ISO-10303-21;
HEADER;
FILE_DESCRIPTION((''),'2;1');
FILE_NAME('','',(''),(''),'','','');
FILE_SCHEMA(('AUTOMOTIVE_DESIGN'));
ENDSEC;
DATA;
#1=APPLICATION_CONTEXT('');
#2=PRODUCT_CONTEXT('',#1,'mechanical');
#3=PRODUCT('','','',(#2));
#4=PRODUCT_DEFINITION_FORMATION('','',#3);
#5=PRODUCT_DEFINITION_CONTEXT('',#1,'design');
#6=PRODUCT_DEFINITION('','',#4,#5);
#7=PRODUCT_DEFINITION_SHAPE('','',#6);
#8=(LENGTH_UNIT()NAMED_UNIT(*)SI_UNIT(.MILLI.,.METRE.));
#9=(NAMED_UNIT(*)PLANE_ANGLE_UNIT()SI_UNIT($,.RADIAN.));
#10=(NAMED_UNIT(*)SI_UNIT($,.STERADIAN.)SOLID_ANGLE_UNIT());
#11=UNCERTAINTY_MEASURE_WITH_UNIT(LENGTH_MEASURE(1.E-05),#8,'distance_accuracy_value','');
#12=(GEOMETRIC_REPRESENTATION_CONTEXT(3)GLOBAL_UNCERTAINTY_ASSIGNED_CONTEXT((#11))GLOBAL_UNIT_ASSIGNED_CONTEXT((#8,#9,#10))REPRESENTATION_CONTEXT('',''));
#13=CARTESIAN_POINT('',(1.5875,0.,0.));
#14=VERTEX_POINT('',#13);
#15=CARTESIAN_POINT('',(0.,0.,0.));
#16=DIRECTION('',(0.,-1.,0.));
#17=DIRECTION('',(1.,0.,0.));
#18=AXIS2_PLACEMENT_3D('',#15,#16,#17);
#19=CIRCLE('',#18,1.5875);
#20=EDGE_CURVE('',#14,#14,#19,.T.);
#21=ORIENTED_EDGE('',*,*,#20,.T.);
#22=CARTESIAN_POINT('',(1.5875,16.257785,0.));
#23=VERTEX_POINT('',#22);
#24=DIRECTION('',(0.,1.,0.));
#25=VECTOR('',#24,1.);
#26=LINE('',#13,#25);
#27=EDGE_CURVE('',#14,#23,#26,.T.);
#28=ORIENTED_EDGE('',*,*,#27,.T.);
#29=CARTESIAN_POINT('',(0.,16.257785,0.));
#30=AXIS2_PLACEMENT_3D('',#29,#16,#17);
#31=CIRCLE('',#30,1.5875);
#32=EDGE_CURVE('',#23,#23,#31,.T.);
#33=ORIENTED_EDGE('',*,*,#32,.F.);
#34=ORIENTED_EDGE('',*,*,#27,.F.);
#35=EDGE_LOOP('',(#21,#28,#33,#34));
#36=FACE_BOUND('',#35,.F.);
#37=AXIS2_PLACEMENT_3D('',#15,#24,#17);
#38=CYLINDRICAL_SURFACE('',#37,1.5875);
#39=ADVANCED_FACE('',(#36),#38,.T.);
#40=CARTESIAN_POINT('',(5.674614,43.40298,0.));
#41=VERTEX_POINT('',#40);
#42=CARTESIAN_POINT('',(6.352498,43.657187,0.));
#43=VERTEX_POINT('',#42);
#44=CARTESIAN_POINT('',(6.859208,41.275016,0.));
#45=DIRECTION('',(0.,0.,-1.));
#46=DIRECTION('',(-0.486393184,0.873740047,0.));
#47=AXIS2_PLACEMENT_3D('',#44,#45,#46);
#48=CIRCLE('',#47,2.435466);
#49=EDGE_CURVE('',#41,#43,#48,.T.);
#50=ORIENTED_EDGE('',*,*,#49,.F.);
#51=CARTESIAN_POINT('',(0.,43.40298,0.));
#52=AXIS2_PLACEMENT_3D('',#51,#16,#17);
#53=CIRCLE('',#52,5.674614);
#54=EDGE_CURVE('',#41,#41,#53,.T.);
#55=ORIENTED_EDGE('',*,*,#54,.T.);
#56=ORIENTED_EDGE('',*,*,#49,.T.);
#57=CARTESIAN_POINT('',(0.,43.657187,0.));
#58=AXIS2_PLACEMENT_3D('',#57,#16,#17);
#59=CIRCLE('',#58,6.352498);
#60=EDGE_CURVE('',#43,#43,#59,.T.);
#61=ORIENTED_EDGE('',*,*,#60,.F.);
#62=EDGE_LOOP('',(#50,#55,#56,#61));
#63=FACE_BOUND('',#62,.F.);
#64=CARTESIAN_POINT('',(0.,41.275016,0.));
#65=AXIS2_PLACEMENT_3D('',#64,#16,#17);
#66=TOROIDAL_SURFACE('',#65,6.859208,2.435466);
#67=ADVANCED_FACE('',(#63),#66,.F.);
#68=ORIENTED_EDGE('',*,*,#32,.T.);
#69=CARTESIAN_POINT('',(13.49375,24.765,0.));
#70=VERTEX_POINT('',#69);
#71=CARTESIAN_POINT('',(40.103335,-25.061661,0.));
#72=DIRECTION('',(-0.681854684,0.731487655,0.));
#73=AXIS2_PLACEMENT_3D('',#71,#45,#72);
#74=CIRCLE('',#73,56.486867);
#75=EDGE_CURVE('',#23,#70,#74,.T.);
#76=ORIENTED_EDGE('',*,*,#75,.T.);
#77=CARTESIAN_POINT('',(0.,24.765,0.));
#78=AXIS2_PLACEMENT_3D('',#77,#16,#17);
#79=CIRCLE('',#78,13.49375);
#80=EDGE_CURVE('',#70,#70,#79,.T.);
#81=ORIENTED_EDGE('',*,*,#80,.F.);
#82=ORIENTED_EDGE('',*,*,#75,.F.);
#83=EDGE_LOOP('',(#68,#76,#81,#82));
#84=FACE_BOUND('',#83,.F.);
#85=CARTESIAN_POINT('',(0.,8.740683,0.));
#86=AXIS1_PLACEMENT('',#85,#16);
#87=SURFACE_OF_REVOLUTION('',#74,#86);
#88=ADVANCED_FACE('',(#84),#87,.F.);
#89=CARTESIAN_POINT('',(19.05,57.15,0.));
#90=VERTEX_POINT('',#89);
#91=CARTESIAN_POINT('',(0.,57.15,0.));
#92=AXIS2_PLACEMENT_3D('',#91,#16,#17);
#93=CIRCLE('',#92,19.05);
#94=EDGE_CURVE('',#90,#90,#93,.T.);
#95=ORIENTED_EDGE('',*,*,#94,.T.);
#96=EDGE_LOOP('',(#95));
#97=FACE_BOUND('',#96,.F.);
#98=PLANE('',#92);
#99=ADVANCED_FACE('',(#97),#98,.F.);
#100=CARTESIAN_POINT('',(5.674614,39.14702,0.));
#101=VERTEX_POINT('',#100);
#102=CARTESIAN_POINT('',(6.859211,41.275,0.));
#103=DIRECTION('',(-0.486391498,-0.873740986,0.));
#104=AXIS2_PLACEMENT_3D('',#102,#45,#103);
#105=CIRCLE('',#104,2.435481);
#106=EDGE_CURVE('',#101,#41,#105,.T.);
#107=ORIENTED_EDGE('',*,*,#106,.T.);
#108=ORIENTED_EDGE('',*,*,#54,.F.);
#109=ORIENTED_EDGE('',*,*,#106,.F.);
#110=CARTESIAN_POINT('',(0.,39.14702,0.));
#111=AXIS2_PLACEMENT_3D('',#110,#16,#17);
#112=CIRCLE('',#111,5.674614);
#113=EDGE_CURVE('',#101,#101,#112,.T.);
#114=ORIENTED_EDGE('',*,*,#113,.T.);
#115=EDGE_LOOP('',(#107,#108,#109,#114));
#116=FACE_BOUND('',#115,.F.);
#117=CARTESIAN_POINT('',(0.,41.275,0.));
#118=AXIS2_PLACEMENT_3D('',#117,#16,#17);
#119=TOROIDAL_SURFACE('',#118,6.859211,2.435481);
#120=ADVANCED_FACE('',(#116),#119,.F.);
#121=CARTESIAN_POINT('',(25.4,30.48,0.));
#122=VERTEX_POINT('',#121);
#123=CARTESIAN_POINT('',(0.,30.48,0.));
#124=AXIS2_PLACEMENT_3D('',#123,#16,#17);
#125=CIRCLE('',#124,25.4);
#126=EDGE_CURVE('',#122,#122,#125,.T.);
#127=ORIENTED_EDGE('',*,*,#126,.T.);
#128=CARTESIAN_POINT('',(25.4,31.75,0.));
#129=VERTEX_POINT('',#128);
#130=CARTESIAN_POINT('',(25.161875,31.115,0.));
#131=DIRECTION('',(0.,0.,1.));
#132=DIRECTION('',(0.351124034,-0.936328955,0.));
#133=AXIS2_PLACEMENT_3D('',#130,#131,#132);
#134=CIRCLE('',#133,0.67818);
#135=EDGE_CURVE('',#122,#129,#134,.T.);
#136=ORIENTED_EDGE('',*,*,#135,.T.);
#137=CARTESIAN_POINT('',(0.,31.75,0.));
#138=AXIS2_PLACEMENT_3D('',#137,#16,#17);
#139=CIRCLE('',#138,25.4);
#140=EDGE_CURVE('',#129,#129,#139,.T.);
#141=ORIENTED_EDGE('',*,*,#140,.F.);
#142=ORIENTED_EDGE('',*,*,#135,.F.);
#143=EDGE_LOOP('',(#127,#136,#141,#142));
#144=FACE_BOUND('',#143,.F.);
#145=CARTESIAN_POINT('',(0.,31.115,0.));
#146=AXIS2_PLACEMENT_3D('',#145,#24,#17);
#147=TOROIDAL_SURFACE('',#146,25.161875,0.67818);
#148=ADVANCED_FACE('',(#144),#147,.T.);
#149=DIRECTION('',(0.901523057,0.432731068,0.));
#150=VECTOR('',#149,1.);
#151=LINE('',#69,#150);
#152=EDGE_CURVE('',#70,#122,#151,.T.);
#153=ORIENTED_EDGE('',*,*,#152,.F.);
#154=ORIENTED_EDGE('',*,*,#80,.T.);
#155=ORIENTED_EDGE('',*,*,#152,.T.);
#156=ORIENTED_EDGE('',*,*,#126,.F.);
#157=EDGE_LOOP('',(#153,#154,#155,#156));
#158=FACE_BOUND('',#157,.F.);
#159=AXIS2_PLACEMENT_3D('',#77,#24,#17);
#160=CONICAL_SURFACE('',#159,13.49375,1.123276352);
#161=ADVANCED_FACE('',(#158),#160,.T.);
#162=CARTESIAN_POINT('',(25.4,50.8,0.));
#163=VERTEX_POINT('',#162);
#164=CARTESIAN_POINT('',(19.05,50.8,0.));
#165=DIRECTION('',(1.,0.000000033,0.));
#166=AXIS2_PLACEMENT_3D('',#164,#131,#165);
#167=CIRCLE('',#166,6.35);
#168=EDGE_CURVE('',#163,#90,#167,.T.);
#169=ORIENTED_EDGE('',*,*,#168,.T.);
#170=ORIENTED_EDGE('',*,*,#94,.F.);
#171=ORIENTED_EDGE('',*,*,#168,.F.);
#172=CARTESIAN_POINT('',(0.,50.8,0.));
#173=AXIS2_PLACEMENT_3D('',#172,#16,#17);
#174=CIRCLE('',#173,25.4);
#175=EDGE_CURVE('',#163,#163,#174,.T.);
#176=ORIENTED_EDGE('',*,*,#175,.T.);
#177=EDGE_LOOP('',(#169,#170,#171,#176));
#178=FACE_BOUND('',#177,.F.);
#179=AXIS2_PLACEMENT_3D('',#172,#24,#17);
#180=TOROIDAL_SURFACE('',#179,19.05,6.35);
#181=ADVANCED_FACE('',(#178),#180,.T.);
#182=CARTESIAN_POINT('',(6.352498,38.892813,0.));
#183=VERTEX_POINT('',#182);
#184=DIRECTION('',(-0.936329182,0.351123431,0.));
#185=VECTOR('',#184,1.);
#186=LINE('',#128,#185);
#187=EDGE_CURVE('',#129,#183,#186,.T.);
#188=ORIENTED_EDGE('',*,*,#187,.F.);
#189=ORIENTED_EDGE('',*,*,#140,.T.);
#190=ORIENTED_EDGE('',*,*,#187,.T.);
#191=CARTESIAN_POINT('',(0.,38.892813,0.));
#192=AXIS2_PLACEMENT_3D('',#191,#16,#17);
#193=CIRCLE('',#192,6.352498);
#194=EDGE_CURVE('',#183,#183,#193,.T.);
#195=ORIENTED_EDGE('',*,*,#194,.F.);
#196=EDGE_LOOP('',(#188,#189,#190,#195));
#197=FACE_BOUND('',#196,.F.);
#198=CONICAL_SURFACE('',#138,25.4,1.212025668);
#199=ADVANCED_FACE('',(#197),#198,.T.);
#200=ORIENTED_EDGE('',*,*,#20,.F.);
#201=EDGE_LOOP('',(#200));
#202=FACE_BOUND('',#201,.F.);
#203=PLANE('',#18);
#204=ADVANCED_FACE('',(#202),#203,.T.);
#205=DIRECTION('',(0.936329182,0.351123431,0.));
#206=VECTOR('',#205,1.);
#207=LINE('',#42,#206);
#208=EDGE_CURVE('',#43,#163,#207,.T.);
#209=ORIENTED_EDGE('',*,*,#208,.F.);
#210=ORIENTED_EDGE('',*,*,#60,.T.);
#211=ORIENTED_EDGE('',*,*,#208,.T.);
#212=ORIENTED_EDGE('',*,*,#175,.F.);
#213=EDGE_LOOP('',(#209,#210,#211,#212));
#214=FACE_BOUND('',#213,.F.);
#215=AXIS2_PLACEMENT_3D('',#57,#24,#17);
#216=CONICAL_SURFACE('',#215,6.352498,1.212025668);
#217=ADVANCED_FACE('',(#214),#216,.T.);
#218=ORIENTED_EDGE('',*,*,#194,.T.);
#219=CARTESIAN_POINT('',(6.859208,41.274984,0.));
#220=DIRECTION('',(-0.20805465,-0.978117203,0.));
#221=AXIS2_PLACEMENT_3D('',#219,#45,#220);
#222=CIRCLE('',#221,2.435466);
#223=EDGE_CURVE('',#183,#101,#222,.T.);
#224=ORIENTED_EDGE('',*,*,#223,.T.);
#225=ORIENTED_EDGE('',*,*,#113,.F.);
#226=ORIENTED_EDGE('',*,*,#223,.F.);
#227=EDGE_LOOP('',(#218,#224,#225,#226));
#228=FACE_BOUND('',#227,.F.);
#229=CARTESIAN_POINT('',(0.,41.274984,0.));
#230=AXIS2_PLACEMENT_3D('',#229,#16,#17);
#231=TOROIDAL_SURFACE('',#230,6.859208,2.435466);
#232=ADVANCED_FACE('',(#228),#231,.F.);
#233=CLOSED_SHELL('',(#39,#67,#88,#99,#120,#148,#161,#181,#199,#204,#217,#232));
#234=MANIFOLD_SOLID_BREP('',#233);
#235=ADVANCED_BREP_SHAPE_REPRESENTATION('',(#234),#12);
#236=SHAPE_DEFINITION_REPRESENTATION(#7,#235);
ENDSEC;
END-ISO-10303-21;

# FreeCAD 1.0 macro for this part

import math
import FreeCAD as App
import Part
import Sketcher
Q = App.Units.Quantity

doc = App.newDocument("Part")
params = doc.addObject("Spreadsheet::Sheet", "Params")
for row, (alias, value) in enumerate([
    ("sketch1_radius", "0.25 in"),
    ("sketch1_width", "0.75 in"),
    ("sketch1_width2", "0.0625 in"),
    ("revolution_angle", "360 deg"),
], start=1):
    params.set(f"A{row}", alias)
    params.set(f"B{row}", "=" + value)
    params.setAlias(f"B{row}", alias)

body = doc.addObject("PartDesign::Body", "Body")

sketch1 = doc.addObject("Sketcher::SketchObject", "Sketch")
body.addObject(sketch1)
sketch1.AttachmentSupport = (doc.XY_Plane, [""])
sketch1.MapMode = "FlatFace"
sketch1.addGeometry(Part.LineSegment(App.Vector(0, 0, 0), App.Vector(1.5875, 0, 0)), False)
sketch1.addGeometry(Part.LineSegment(App.Vector(1.5875, 0, 0), App.Vector(1.5875, 16.257785, 0)), False)
sketch1.addGeometry(Part.ArcOfCircle(Part.Circle(App.Vector(40.103335, -25.061661, 0), App.Vector(0, 0, 1), 56.486867), math.radians(118.104139), math.radians(132.988745)), False)
sketch1.addGeometry(Part.LineSegment(App.Vector(13.49375, 24.765, 0), App.Vector(25.4, 30.48, 0)), False)
sketch1.addGeometry(Part.ArcOfCircle(Part.Circle(App.Vector(25.161875, 31.115, 0), App.Vector(0, 0, 1), 0.67818), math.radians(-69.443919), math.radians(69.443919)), False)
sketch1.addGeometry(Part.LineSegment(App.Vector(25.4, 31.75, 0), App.Vector(6.352498, 38.892813, 0)), False)
sketch1.addGeometry(Part.ArcOfCircle(Part.Circle(App.Vector(6.859208, 41.274984, 0), App.Vector(0, 0, 1), 2.435466), math.radians(-119.10379), math.radians(-102.008374)), False)
sketch1.addGeometry(Part.ArcOfCircle(Part.Circle(App.Vector(6.859211, 41.275, 0), App.Vector(0, 0, 1), 2.435481), math.radians(119.10368), math.radians(240.89632)), False)
sketch1.addGeometry(Part.ArcOfCircle(Part.Circle(App.Vector(6.859208, 41.275016, 0), App.Vector(0, 0, 1), 2.435466), math.radians(102.008374), math.radians(119.10379)), False)
sketch1.addGeometry(Part.LineSegment(App.Vector(6.352498, 43.657187, 0), App.Vector(25.4, 50.8, 0)), False)
sketch1.addGeometry(Part.ArcOfCircle(Part.Circle(App.Vector(19.05, 50.8, 0), App.Vector(0, 0, 1), 6.35), math.radians(0.000002), math.radians(89.999998)), False)
sketch1.addGeometry(Part.LineSegment(App.Vector(19.05, 57.15, 0), App.Vector(0, 57.15, 0)), False)
sketch1.addGeometry(Part.LineSegment(App.Vector(0, 57.15, 0), App.Vector(0, 0, 0)), False)
sketch1.addConstraint(Sketcher.Constraint("Coincident", 0, 2, 1, 1))
sketch1.addConstraint(Sketcher.Constraint("Coincident", 1, 2, 2, 2))
sketch1.addConstraint(Sketcher.Constraint("Coincident", 2, 1, 3, 1))
sketch1.addConstraint(Sketcher.Constraint("Coincident", 3, 2, 4, 1))
sketch1.addConstraint(Sketcher.Constraint("Coincident", 4, 2, 5, 1))
sketch1.addConstraint(Sketcher.Constraint("Coincident", 5, 2, 6, 2))
sketch1.addConstraint(Sketcher.Constraint("Coincident", 6, 1, 7, 2))
sketch1.addConstraint(Sketcher.Constraint("Coincident", 7, 1, 8, 2))
sketch1.addConstraint(Sketcher.Constraint("Coincident", 8, 1, 9, 1))
sketch1.addConstraint(Sketcher.Constraint("Coincident", 9, 2, 10, 1))
sketch1.addConstraint(Sketcher.Constraint("Coincident", 10, 2, 11, 1))
sketch1.addConstraint(Sketcher.Constraint("Coincident", 11, 2, 12, 1))
sketch1.addConstraint(Sketcher.Constraint("Coincident", 12, 2, 0, 1))
sketch1.addConstraint(Sketcher.Constraint("Horizontal", 0))
sketch1.addConstraint(Sketcher.Constraint("Vertical", 1))
sketch1.addConstraint(Sketcher.Constraint("Horizontal", 11))
sketch1.addConstraint(Sketcher.Constraint("Vertical", 12))
sketch1.addConstraint(Sketcher.Constraint("Coincident", 12, 2, -1, 1))
sketch1.addConstraint(Sketcher.Constraint("Radius", 10, Q("0.25 in")))
sketch1.addConstraint(Sketcher.Constraint("DistanceY", -1, 1, 10, 3, Q("2 in")))
sketch1.addConstraint(Sketcher.Constraint("DistanceX", -1, 1, 3, 2, Q("1 in")))
sketch1.addConstraint(Sketcher.Constraint("DistanceX", -1, 1, 4, 2, Q("1 in")))
sketch1.addConstraint(Sketcher.Constraint("DistanceX", -1, 1, 9, 2, Q("1 in")))
sketch1.addConstraint(Sketcher.Constraint("DistanceY", -1, 1, 9, 2, Q("2 in")))
sketch1.addConstraint(Sketcher.Constraint("DistanceX", 11, 2, 11, 1, Q("0.75 in")))
sketch1.addConstraint(Sketcher.Constraint("DistanceY", -1, 1, 3, 2, Q("1.2 in")))
sketch1.addConstraint(Sketcher.Constraint("Radius", 4, Q("0.0267 in")))
sketch1.addConstraint(Sketcher.Constraint("DistanceY", 4, 3, 7, 3, Q("0.4 in")))
sketch1.addConstraint(Sketcher.Constraint("DistanceX", 0, 1, 0, 2, Q("0.0625 in")))
sketch1.addConstraint(Sketcher.Constraint("DistanceY", -1, 1, 4, 2, Q("1.25 in")))
sketch1.addConstraint(Sketcher.Constraint("DistanceY", 2, 1, 4, 3, Q("0.25 in")))
sketch1.addConstraint(Sketcher.Constraint("DistanceX", -1, 1, 2, 1, Q("0.53125 in")))
sketch1.addConstraint(Sketcher.Constraint("Radius", 7, 2.435481))
sketch1.addConstraint(Sketcher.Constraint("Radius", 2, 56.486867))
sketch1.addConstraint(Sketcher.Constraint("Radius", 6, 2.435466))
sketch1.addConstraint(Sketcher.Constraint("Radius", 8, 2.435466))
sketch1.addConstraint(Sketcher.Constraint("DistanceX", -1, 1, 8, 1, 6.352498))
sketch1.addConstraint(Sketcher.Constraint("DistanceY", 1, 2, 6, 3, 25.017199))
sketch1.addConstraint(Sketcher.Constraint("DistanceX", 5, 2, 10, 3, 12.697502))
sketch1.addConstraint(Sketcher.Constraint("Distance", 5, 20.342741))
sketch1.addConstraint(Sketcher.Constraint("Distance", 9, 20.342741))
sketch1.addConstraint(Sketcher.Constraint("DistanceY", 1, 1, 1, 2, 16.257785))
sketch1.addConstraint(Sketcher.Constraint("DistanceY", -1, 1, 6, 1, 39.14702))
sketch1.addConstraint(Sketcher.Constraint("DistanceY", -1, 1, 7, 1, 43.40298))
sketch1.setExpression("Constraints[18]", "Params.sketch1_radius")
sketch1.setExpression("Constraints[24]", "Params.sketch1_width")
sketch1.setExpression("Constraints[28]", "Params.sketch1_width2")
revolution = doc.addObject("PartDesign::Revolution", "Revolution")
body.addObject(revolution)
revolution.Profile = sketch1
revolution.ReferenceAxis = (sketch1, ["V_Axis"])
revolution.setExpression("Angle", "Params.revolution_angle")

doc.recompute()
